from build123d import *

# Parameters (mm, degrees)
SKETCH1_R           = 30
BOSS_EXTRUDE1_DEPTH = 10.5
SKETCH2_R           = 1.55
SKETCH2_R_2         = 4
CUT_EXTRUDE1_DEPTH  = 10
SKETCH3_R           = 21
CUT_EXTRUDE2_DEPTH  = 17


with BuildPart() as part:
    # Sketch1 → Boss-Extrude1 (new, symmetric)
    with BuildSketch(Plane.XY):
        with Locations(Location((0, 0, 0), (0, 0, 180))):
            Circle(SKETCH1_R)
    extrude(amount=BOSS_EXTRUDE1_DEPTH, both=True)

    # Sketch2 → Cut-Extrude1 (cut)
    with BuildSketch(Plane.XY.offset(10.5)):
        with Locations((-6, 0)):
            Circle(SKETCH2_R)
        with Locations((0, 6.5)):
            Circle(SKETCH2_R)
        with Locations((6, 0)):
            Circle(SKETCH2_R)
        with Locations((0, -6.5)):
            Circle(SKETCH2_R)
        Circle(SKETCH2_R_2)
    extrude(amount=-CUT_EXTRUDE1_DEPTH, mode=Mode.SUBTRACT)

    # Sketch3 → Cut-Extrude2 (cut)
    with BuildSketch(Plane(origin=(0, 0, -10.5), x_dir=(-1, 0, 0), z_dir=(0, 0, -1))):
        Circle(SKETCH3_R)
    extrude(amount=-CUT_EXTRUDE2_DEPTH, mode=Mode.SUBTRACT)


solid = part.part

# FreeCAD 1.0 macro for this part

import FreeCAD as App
import Part
import Sketcher

doc = App.newDocument("Part")
params = doc.addObject("Spreadsheet::Sheet", "Params")
for row, (alias, value) in enumerate([
    ("sketch1_diameter", "60 mm"),
    ("pad1_length", "21 mm"),
    ("sketch2_diameter", "8 mm"),
    ("sketch2_diameter2", "3.1 mm"),
    ("pocket1_length", "10 mm"),
    ("sketch3_diameter", "42 mm"),
    ("pocket2_length", "17 mm"),
], start=1):
    params.set(f"A{row}", alias)
    params.set(f"B{row}", "=" + value)
    params.setAlias(f"B{row}", alias)

body = doc.addObject("PartDesign::Body", "Body")

# Sketch on XY plane
sketch1 = body.newObject("Sketcher::SketchObject", "Sketch")
sketch1.AttachmentSupport = (doc.getObject("XY_Plane"), [""])
sketch1.MapMode = "FlatFace"
sketch1.addGeometry(Part.Circle(App.Vector(0, 0, 0), App.Vector(0, 0, 1), 30), False)
sketch1.addConstraint([
    Sketcher.Constraint("Coincident", 0, 3, -1, 1),
    Sketcher.Constraint("Diameter", 0, 60.0),
])
sketch1.setExpression("Constraints[1]", "Params.sketch1_diameter")
pad1 = body.newObject("PartDesign::Pad", "Pad")
pad1.Profile = sketch1
pad1.setExpression("Length", "Params.pad1_length")
pad1.Midplane = True

# Sketch on XY plane
sketch2 = body.newObject("Sketcher::SketchObject", "Sketch001")
sketch2.AttachmentSupport = (doc.getObject("XY_Plane"), [""])
sketch2.MapMode = "FlatFace"
sketch2.AttachmentOffset = App.Placement(App.Vector(0, 0, 10.5), App.Rotation())
sketch2.addGeometry([
    Part.Circle(App.Vector(-6, 0, 0), App.Vector(0, 0, 1), 1.6),  # 0
    Part.Circle(App.Vector(0, 6.5, 0), App.Vector(0, 0, 1), 1.6),  # 1
    Part.Circle(App.Vector(6, 0, 0), App.Vector(0, 0, 1), 1.6),  # 2
    Part.Circle(App.Vector(0, -6.5, 0), App.Vector(0, 0, 1), 1.6),  # 3
    Part.Circle(App.Vector(0, 0, 0), App.Vector(0, 0, 1), 4),  # 4
], False)
sketch2.addConstraint([
    Sketcher.Constraint("Coincident", 4, 3, -1, 1),
    Sketcher.Constraint("Equal", 0, 1),
    Sketcher.Constraint("Equal", 1, 2),
    Sketcher.Constraint("Equal", 2, 3),
    Sketcher.Constraint("Symmetric", 0, 3, 2, 3, -1, 1),
    Sketcher.Constraint("Symmetric", 1, 3, 3, 3, -1, 1),
    Sketcher.Constraint("PointOnObject", 0, 3, -1),
    Sketcher.Constraint("PointOnObject", 1, 3, -2),
    Sketcher.Constraint("Diameter", 4, 8.0),
    Sketcher.Constraint("Diameter", 0, 3.1),
    Sketcher.Constraint("DistanceX", 0, 3, -1, 1, 6.0),
    Sketcher.Constraint("DistanceY", 3, 3, 1, 3, 13.0),
])
sketch2.setExpression("Constraints[8]", "Params.sketch2_diameter")
sketch2.setExpression("Constraints[9]", "Params.sketch2_diameter2")
pocket1 = body.newObject("PartDesign::Pocket", "Pocket")
pocket1.Profile = sketch2
pocket1.setExpression("Length", "Params.pocket1_length")

# Sketch on XY plane
sketch3 = body.newObject("Sketcher::SketchObject", "Sketch002")
sketch3.AttachmentSupport = (doc.getObject("XY_Plane"), [""])
sketch3.MapMode = "FlatFace"
sketch3.AttachmentOffset = App.Placement(App.Vector(0, 0, -10.5), App.Rotation())
sketch3.addGeometry(Part.Circle(App.Vector(0, 0, 0), App.Vector(0, 0, 1), 21), False)
sketch3.addConstraint([
    Sketcher.Constraint("Coincident", 0, 3, -1, 1),
    Sketcher.Constraint("Diameter", 0, 42.0),
])
sketch3.setExpression("Constraints[1]", "Params.sketch3_diameter")
pocket2 = body.newObject("PartDesign::Pocket", "Pocket001")
pocket2.Profile = sketch3
pocket2.setExpression("Length", "Params.pocket2_length")
pocket2.Reversed = True

doc.recompute()
